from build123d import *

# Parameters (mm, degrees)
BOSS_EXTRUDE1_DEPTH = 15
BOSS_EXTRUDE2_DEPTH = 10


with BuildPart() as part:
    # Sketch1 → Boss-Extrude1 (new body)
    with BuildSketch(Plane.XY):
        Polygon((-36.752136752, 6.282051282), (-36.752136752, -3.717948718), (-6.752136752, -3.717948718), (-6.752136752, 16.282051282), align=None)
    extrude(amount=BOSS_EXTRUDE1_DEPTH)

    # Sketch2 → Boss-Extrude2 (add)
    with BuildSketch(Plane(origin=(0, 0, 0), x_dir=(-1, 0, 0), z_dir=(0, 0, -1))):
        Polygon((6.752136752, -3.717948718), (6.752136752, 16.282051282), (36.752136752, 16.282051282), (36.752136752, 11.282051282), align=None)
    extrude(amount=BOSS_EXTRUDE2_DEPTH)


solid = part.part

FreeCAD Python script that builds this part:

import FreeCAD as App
import Part
import Sketcher
Q = App.Units.Quantity


def add_polygon(sketch, points):
    """Adds a closed chain of lines whose ends are joined by coincident constraints."""
    first, n = sketch.GeometryCount, len(points)
    for a, b in zip(points, points[1:] + points[:1]):
        sketch.addGeometry(Part.LineSegment(App.Vector(*a, 0), App.Vector(*b, 0)), False)
    for i in range(n):
        sketch.addConstraint(Sketcher.Constraint("Coincident", first + i, 2, first + (i + 1) % n, 1))

doc = App.newDocument("Part")
body = doc.addObject("PartDesign::Body", "Body")

# Sketch on XY plane
sketch1 = doc.addObject("Sketcher::SketchObject", "Sketch")
body.addObject(sketch1)
sketch1.AttachmentSupport = (doc.XY_Plane, [""])
sketch1.MapMode = "FlatFace"
add_polygon(sketch1, [(-36.752137, 6.282051), (-36.752137, -3.717949), (-6.752137, -3.717949), (-6.752137, 16.282051)])  # lines 0-3
sketch1.addConstraint(Sketcher.Constraint("Vertical", 0))
sketch1.addConstraint(Sketcher.Constraint("Horizontal", 1))
sketch1.addConstraint(Sketcher.Constraint("Vertical", 2))
sketch1.addConstraint(Sketcher.Constraint("DistanceX", 1, 1, 1, 2, Q("30 mm")))
sketch1.addConstraint(Sketcher.Constraint("DistanceY", 0, 2, 0, 1, Q("10 mm")))
sketch1.addConstraint(Sketcher.Constraint("DistanceY", 2, 1, 2, 2, Q("20 mm")))
sketch1.addConstraint(Sketcher.Constraint("DistanceY", 0, 2, -1, 1, Q("3.717949 mm")))
sketch1.addConstraint(Sketcher.Constraint("DistanceX", 0, 2, -1, 1, Q("36.752137 mm")))
pad1 = doc.addObject("PartDesign::Pad", "Pad")
body.addObject(pad1)
pad1.Profile = sketch1
pad1.Length = 15

# Sketch on XY plane
sketch2 = doc.addObject("Sketcher::SketchObject", "Sketch001")
body.addObject(sketch2)
sketch2.AttachmentSupport = (doc.XY_Plane, [""])
sketch2.MapMode = "FlatFace"
add_polygon(sketch2, [(-6.752137, 16.282051), (-6.752137, -3.717949), (-36.752137, 11.282051), (-36.752137, 16.282051)])  # lines 0-3
sketch2.addConstraint(Sketcher.Constraint("Vertical", 0))
sketch2.addConstraint(Sketcher.Constraint("Vertical", 2))
sketch2.addConstraint(Sketcher.Constraint("Horizontal", 3))
sketch2.addConstraint(Sketcher.Constraint("DistanceX", 3, 1, 3, 2, Q("30 mm")))
sketch2.addConstraint(Sketcher.Constraint("DistanceY", 0, 2, 0, 1, Q("20 mm")))
sketch2.addConstraint(Sketcher.Constraint("DistanceY", 2, 1, 2, 2, Q("5 mm")))
sketch2.addConstraint(Sketcher.Constraint("DistanceY", 0, 2, -1, 1, Q("3.717949 mm")))
sketch2.addConstraint(Sketcher.Constraint("DistanceX", 0, 2, -1, 1, Q("6.752137 mm")))
pad2 = doc.addObject("PartDesign::Pad", "Pad001")
body.addObject(pad2)
pad2.Profile = sketch2
pad2.Length = 10
pad2.Reversed = True

doc.recompute()
